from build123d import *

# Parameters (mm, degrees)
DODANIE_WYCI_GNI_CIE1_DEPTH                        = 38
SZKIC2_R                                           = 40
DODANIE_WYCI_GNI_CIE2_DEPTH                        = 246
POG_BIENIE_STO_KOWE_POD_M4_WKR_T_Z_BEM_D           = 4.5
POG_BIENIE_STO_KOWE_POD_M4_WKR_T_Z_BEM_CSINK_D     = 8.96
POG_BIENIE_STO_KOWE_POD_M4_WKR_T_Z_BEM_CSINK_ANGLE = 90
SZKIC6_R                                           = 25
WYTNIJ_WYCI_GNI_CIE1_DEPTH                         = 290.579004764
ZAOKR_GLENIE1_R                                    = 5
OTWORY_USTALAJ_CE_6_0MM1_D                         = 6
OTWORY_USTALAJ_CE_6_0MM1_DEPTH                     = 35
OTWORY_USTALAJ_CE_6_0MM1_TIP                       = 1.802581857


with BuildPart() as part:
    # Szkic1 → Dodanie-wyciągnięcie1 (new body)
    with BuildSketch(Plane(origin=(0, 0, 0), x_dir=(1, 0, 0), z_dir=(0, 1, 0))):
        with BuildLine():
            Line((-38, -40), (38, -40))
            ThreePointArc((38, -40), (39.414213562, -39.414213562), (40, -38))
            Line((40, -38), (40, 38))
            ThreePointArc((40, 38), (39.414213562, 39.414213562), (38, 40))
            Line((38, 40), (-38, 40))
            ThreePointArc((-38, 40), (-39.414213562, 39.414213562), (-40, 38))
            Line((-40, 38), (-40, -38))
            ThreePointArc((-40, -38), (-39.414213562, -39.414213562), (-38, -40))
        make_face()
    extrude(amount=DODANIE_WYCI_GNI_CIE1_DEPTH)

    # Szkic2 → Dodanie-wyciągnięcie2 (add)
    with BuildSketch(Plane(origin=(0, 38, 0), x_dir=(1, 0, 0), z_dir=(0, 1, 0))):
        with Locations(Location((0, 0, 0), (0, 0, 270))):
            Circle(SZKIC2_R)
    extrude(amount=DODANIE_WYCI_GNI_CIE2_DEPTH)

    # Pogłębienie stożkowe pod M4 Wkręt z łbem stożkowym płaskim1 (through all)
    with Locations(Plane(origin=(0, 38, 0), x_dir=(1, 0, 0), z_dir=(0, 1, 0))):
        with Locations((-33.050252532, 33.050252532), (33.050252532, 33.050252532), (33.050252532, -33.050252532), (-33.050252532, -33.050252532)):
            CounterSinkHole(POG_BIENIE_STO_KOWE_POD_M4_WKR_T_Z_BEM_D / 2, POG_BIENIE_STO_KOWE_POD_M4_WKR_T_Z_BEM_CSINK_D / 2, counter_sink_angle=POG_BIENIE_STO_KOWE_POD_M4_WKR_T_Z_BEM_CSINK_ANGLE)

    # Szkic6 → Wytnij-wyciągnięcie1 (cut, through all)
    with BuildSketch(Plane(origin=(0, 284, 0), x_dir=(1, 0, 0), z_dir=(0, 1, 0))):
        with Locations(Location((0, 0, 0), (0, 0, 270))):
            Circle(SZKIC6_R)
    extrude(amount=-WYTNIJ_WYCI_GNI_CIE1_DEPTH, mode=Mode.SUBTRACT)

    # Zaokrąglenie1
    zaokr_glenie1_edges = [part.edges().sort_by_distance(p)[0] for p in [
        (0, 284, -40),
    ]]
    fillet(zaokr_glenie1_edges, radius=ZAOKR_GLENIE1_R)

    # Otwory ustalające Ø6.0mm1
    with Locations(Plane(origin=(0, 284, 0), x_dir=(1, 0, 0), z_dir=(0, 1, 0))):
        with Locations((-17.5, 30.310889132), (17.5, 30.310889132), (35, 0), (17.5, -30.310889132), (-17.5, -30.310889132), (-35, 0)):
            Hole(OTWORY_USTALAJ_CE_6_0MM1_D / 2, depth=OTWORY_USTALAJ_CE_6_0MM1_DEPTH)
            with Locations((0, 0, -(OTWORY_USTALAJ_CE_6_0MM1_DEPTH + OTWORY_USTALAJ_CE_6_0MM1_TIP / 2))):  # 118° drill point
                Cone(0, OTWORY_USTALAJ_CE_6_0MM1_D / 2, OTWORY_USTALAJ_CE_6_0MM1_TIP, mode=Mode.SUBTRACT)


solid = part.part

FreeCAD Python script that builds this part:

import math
import FreeCAD as App
import Part
import Sketcher


def edges_at(feature, points):
    """Names of the edges that pass closest to the given points."""
    edges = feature.Shape.Edges
    near = lambda p: min(range(len(edges)), key=lambda i: edges[i].distToShape(Part.Vertex(*p))[0])
    return sorted({f"Edge{near(p) + 1}" for p in points})

doc = App.newDocument("Part")
body = doc.addObject("PartDesign::Body", "Body")

sketch1 = doc.addObject("Sketcher::SketchObject", "Sketch")
body.addObject(sketch1)
sketch1.AttachmentSupport = (doc.XZ_Plane, [""])
sketch1.MapMode = "FlatFace"
sketch1.addGeometry(Part.LineSegment(App.Vector(-38, 40, 0), App.Vector(38, 40, 0)), False)
sketch1.addGeometry(Part.ArcOfCircle(Part.Circle(App.Vector(38, 38, 0), App.Vector(0, 0, 1), 2), math.radians(0), math.radians(90)), False)
sketch1.addGeometry(Part.LineSegment(App.Vector(40, 38, 0), App.Vector(40, -38, 0)), False)
sketch1.addGeometry(Part.ArcOfCircle(Part.Circle(App.Vector(38, -38, 0), App.Vector(0, 0, 1), 2), math.radians(-90), math.radians(0)), False)
sketch1.addGeometry(Part.LineSegment(App.Vector(38, -40, 0), App.Vector(-38, -40, 0)), False)
sketch1.addGeometry(Part.ArcOfCircle(Part.Circle(App.Vector(-38, -38, 0), App.Vector(0, 0, 1), 2), math.radians(-180), math.radians(-90)), False)
sketch1.addGeometry(Part.LineSegment(App.Vector(-40, -38, 0), App.Vector(-40, 38, 0)), False)
sketch1.addGeometry(Part.ArcOfCircle(Part.Circle(App.Vector(-38, 38, 0), App.Vector(0, 0, 1), 2), math.radians(90), math.radians(180)), False)
sketch1.addConstraint(Sketcher.Constraint("Tangent", 0, 2, 1, 2))
sketch1.addConstraint(Sketcher.Constraint("Tangent", 1, 1, 2, 1))
sketch1.addConstraint(Sketcher.Constraint("Tangent", 2, 2, 3, 2))
sketch1.addConstraint(Sketcher.Constraint("Tangent", 3, 1, 4, 1))
sketch1.addConstraint(Sketcher.Constraint("Tangent", 4, 2, 5, 2))
sketch1.addConstraint(Sketcher.Constraint("Tangent", 5, 1, 6, 1))
sketch1.addConstraint(Sketcher.Constraint("Tangent", 6, 2, 7, 2))
sketch1.addConstraint(Sketcher.Constraint("Tangent", 7, 1, 0, 1))
sketch1.addConstraint(Sketcher.Constraint("Horizontal", 0))
sketch1.addConstraint(Sketcher.Constraint("Vertical", 2))
sketch1.addConstraint(Sketcher.Constraint("Horizontal", 4))
sketch1.addConstraint(Sketcher.Constraint("Vertical", 6))
sketch1.addConstraint(Sketcher.Constraint("Equal", 1, 3))
sketch1.addConstraint(Sketcher.Constraint("Equal", 3, 5))
sketch1.addConstraint(Sketcher.Constraint("Equal", 5, 7))
sketch1.addConstraint(Sketcher.Constraint("Symmetric", 1, 3, 5, 3, -1, 1))
sketch1.addConstraint(Sketcher.Constraint("Equal", 4, 2))
sketch1.addConstraint(Sketcher.Constraint("Radius", 1, 2.0))
sketch1.addConstraint(Sketcher.Constraint("DistanceX", 0, 1, 0, 2, 76.0))
pad1 = doc.addObject("PartDesign::Pad", "Pad")
body.addObject(pad1)
pad1.Profile = sketch1
pad1.Length = 38
pad1.Reversed = True

sketch2 = doc.addObject("Sketcher::SketchObject", "Sketch001")
body.addObject(sketch2)
sketch2.AttachmentSupport = (doc.XZ_Plane, [""])
sketch2.MapMode = "FlatFace"
sketch2.AttachmentOffset = App.Placement(App.Vector(0, 0, -38), App.Rotation())
sketch2.addGeometry(Part.Circle(App.Vector(0, 0, 0), App.Vector(0, 0, 1), 40), False)
sketch2.addConstraint(Sketcher.Constraint("Coincident", 0, 3, -1, 1))
sketch2.addConstraint(Sketcher.Constraint("Diameter", 0, 80.0))
pad2 = doc.addObject("PartDesign::Pad", "Pad001")
body.addObject(pad2)
pad2.Profile = sketch2
pad2.Length = 246
pad2.Reversed = True

sketch3 = doc.addObject("Sketcher::SketchObject", "Sketch002")
body.addObject(sketch3)
sketch3.AttachmentSupport = (doc.XZ_Plane, [""])
sketch3.MapMode = "FlatFace"
sketch3.AttachmentOffset = App.Placement(App.Vector(0, 0, -38), App.Rotation())
sketch3.addGeometry(Part.Circle(App.Vector(-33.050253, -33.050253, 0), App.Vector(0, 0, 1), 2.25), False)
sketch3.addGeometry(Part.Circle(App.Vector(33.050253, -33.050253, 0), App.Vector(0, 0, 1), 2.25), False)
sketch3.addGeometry(Part.Circle(App.Vector(33.050253, 33.050253, 0), App.Vector(0, 0, 1), 2.25), False)
sketch3.addGeometry(Part.Circle(App.Vector(-33.050253, 33.050253, 0), App.Vector(0, 0, 1), 2.25), False)
sketch3.addConstraint(Sketcher.Constraint("Equal", 0, 1))
sketch3.addConstraint(Sketcher.Constraint("Equal", 1, 2))
sketch3.addConstraint(Sketcher.Constraint("Equal", 2, 3))
sketch3.addConstraint(Sketcher.Constraint("Symmetric", 0, 3, 2, 3, -1, 1))
sketch3.addConstraint(Sketcher.Constraint("Symmetric", 1, 3, 3, 3, -1, 1))
sketch3.addConstraint(Sketcher.Constraint("Symmetric", 0, 3, 1, 3, -2))
sketch3.addConstraint(Sketcher.Constraint("Diameter", 0, 4.5))
sketch3.addConstraint(Sketcher.Constraint("DistanceX", 0, 3, -1, 1, 33.050253))
sketch3.addConstraint(Sketcher.Constraint("DistanceY", 0, 3, -1, 1, 33.050253))
doc.recompute()
hole = doc.addObject("PartDesign::Hole", "Hole")
body.addObject(hole)
hole.Profile = sketch3
hole.ThreadType = "None"
hole.Diameter = 4.5
hole.DepthType = "ThroughAll"
hole.HoleCutType = "Countersink"
hole.HoleCutDiameter = 8.96
hole.HoleCutCountersinkAngle = 90
hole.Reversed = True

sketch4 = doc.addObject("Sketcher::SketchObject", "Sketch003")
body.addObject(sketch4)
sketch4.AttachmentSupport = (doc.XZ_Plane, [""])
sketch4.MapMode = "FlatFace"
sketch4.AttachmentOffset = App.Placement(App.Vector(0, 0, -284), App.Rotation())
sketch4.addGeometry(Part.Circle(App.Vector(0, 0, 0), App.Vector(0, 0, 1), 25), False)
sketch4.addConstraint(Sketcher.Constraint("Coincident", 0, 3, -1, 1))
sketch4.addConstraint(Sketcher.Constraint("Diameter", 0, 50.0))
pocket1 = doc.addObject("PartDesign::Pocket", "Pocket")
body.addObject(pocket1)
pocket1.Profile = sketch4
pocket1.Type = "ThroughAll"
pocket1.Reversed = True
doc.recompute()

fillet = doc.addObject("PartDesign::Fillet", "Fillet")
body.addObject(fillet)
fillet.Base = (pocket1, edges_at(pocket1, [(0, 284, -40)]))
fillet.Radius = 5

sketch5 = doc.addObject("Sketcher::SketchObject", "Sketch004")
body.addObject(sketch5)
sketch5.AttachmentSupport = (doc.XZ_Plane, [""])
sketch5.MapMode = "FlatFace"
sketch5.AttachmentOffset = App.Placement(App.Vector(0, 0, -284), App.Rotation())
sketch5.addGeometry(Part.Circle(App.Vector(-17.5, -30.310889, 0), App.Vector(0, 0, 1), 3), False)
sketch5.addGeometry(Part.Circle(App.Vector(17.5, -30.310889, 0), App.Vector(0, 0, 1), 3), False)
sketch5.addGeometry(Part.Circle(App.Vector(35, 0, 0), App.Vector(0, 0, 1), 3), False)
sketch5.addGeometry(Part.Circle(App.Vector(17.5, 30.310889, 0), App.Vector(0, 0, 1), 3), False)
sketch5.addGeometry(Part.Circle(App.Vector(-17.5, 30.310889, 0), App.Vector(0, 0, 1), 3), False)
sketch5.addGeometry(Part.Circle(App.Vector(-35, 0, 0), App.Vector(0, 0, 1), 3), False)
sketch5.addConstraint(Sketcher.Constraint("Equal", 0, 1))
sketch5.addConstraint(Sketcher.Constraint("Equal", 1, 2))
sketch5.addConstraint(Sketcher.Constraint("Equal", 2, 3))
sketch5.addConstraint(Sketcher.Constraint("Equal", 3, 4))
sketch5.addConstraint(Sketcher.Constraint("Equal", 4, 5))
sketch5.addConstraint(Sketcher.Constraint("Symmetric", 0, 3, 3, 3, -1, 1))
sketch5.addConstraint(Sketcher.Constraint("Symmetric", 1, 3, 4, 3, -1, 1))
sketch5.addConstraint(Sketcher.Constraint("Symmetric", 2, 3, 5, 3, -1, 1))
sketch5.addConstraint(Sketcher.Constraint("Symmetric", 0, 3, 1, 3, -2))
sketch5.addConstraint(Sketcher.Constraint("PointOnObject", 2, 3, -1))
sketch5.addConstraint(Sketcher.Constraint("Diameter", 0, 6.0))
sketch5.addConstraint(Sketcher.Constraint("DistanceX", -1, 1, 2, 3, 35.0))
sketch5.addConstraint(Sketcher.Constraint("DistanceX", 0, 3, 1, 3, 35.0))
sketch5.addConstraint(Sketcher.Constraint("DistanceY", 0, 3, -1, 1, 30.310889))
doc.recompute()
hole2 = doc.addObject("PartDesign::Hole", "Hole001")
body.addObject(hole2)
hole2.Profile = sketch5
hole2.ThreadType = "None"
hole2.Diameter = 6
hole2.DepthType = "Dimension"
hole2.Depth = 35
hole2.DrillPoint = "Angled"
hole2.DrillPointAngle = 118
hole2.Reversed = True

doc.recompute()
